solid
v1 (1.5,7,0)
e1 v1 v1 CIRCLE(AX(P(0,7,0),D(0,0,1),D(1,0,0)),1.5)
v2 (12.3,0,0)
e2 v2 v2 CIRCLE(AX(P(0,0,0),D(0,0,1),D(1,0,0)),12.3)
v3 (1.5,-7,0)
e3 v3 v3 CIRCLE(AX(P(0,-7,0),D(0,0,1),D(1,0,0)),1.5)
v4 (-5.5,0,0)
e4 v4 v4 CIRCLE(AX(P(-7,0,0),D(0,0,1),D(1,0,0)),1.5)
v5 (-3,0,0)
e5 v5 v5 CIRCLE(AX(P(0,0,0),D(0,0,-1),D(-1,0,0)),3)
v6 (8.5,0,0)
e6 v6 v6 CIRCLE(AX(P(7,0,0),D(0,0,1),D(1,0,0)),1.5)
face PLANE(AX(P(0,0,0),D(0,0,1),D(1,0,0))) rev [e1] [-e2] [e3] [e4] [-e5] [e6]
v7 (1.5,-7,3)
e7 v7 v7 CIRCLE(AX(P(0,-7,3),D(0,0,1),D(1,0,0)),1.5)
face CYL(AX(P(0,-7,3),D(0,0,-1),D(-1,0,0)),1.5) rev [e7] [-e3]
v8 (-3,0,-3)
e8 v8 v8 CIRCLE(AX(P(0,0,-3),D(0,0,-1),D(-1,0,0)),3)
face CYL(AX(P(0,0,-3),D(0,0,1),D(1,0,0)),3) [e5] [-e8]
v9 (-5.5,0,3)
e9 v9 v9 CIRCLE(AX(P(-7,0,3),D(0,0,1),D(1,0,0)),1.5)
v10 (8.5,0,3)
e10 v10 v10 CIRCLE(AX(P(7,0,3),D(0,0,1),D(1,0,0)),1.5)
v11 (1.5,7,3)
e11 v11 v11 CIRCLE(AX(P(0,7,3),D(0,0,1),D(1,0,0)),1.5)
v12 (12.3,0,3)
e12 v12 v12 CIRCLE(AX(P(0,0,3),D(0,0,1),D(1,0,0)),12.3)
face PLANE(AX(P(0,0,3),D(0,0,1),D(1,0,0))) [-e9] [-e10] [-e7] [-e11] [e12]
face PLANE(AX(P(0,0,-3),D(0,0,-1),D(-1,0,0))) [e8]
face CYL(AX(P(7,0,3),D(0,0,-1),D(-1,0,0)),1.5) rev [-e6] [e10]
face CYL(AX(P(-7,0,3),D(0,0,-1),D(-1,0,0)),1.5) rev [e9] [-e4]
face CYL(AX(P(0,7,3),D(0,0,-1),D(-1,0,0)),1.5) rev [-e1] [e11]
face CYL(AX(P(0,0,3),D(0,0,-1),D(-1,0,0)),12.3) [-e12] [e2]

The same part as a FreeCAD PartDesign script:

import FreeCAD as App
import Part
import Sketcher
from FreeCAD import Vector

doc = App.newDocument("Part")
body = doc.addObject("PartDesign::Body", "Body")

# Sketch on XY plane
sketch1 = doc.addObject("Sketcher::SketchObject", "Sketch")
body.addObject(sketch1)
sketch1.AttachmentSupport = (doc.XY_Plane, [""])
sketch1.MapMode = "FlatFace"
sketch1.addGeometry([
    Part.Circle(Vector(0, 0, 0), Vector(0, 0, 1), 12.3),  # 0
    Part.Circle(Vector(0, -7, 0), Vector(0, 0, 1), 1.5),  # 1
    Part.Circle(Vector(-7, 0, 0), Vector(0, 0, 1), 1.5),  # 2
    Part.Circle(Vector(7, 0, 0), Vector(0, 0, 1), 1.5),  # 3
    Part.Circle(Vector(0, 7, 0), Vector(0, 0, 1), 1.5),  # 4
], False)
sketch1.addConstraint([
    Sketcher.Constraint("Coincident", 0, 3, -1, 1),
    Sketcher.Constraint("Equal", 1, 2),
    Sketcher.Constraint("Equal", 2, 3),
    Sketcher.Constraint("Equal", 3, 4),
    Sketcher.Constraint("Symmetric", 2, 3, 3, 3, -1, 1),
    Sketcher.Constraint("Symmetric", 1, 3, 4, 3, -1, 1),
    Sketcher.Constraint("PointOnObject", 1, 3, -2),
    Sketcher.Constraint("PointOnObject", 2, 3, -1),
    Sketcher.Constraint("Diameter", 1, 3.0),
    Sketcher.Constraint("Diameter", 0, 24.6),
    Sketcher.Constraint("DistanceY", 1, 3, -1, 1, 7.0),
    Sketcher.Constraint("DistanceX", 2, 3, -1, 1, 7.0),
])
pad1 = doc.addObject("PartDesign::Pad", "Pad")
body.addObject(pad1)
pad1.Profile = sketch1
pad1.Length = 3

# Sketch on XY plane
sketch2 = doc.addObject("Sketcher::SketchObject", "Sketch001")
body.addObject(sketch2)
sketch2.AttachmentSupport = (doc.XY_Plane, [""])
sketch2.MapMode = "FlatFace"
sketch2.addGeometry(Part.Circle(Vector(0, 0, 0), Vector(0, 0, 1), 3), False)
sketch2.addConstraint([
    Sketcher.Constraint("Coincident", 0, 3, -1, 1),
    Sketcher.Constraint("Diameter", 0, 6.0),
])
pad2 = doc.addObject("PartDesign::Pad", "Pad001")
body.addObject(pad2)
pad2.Profile = sketch2
pad2.Length = 3
pad2.Reversed = True

doc.recompute()
